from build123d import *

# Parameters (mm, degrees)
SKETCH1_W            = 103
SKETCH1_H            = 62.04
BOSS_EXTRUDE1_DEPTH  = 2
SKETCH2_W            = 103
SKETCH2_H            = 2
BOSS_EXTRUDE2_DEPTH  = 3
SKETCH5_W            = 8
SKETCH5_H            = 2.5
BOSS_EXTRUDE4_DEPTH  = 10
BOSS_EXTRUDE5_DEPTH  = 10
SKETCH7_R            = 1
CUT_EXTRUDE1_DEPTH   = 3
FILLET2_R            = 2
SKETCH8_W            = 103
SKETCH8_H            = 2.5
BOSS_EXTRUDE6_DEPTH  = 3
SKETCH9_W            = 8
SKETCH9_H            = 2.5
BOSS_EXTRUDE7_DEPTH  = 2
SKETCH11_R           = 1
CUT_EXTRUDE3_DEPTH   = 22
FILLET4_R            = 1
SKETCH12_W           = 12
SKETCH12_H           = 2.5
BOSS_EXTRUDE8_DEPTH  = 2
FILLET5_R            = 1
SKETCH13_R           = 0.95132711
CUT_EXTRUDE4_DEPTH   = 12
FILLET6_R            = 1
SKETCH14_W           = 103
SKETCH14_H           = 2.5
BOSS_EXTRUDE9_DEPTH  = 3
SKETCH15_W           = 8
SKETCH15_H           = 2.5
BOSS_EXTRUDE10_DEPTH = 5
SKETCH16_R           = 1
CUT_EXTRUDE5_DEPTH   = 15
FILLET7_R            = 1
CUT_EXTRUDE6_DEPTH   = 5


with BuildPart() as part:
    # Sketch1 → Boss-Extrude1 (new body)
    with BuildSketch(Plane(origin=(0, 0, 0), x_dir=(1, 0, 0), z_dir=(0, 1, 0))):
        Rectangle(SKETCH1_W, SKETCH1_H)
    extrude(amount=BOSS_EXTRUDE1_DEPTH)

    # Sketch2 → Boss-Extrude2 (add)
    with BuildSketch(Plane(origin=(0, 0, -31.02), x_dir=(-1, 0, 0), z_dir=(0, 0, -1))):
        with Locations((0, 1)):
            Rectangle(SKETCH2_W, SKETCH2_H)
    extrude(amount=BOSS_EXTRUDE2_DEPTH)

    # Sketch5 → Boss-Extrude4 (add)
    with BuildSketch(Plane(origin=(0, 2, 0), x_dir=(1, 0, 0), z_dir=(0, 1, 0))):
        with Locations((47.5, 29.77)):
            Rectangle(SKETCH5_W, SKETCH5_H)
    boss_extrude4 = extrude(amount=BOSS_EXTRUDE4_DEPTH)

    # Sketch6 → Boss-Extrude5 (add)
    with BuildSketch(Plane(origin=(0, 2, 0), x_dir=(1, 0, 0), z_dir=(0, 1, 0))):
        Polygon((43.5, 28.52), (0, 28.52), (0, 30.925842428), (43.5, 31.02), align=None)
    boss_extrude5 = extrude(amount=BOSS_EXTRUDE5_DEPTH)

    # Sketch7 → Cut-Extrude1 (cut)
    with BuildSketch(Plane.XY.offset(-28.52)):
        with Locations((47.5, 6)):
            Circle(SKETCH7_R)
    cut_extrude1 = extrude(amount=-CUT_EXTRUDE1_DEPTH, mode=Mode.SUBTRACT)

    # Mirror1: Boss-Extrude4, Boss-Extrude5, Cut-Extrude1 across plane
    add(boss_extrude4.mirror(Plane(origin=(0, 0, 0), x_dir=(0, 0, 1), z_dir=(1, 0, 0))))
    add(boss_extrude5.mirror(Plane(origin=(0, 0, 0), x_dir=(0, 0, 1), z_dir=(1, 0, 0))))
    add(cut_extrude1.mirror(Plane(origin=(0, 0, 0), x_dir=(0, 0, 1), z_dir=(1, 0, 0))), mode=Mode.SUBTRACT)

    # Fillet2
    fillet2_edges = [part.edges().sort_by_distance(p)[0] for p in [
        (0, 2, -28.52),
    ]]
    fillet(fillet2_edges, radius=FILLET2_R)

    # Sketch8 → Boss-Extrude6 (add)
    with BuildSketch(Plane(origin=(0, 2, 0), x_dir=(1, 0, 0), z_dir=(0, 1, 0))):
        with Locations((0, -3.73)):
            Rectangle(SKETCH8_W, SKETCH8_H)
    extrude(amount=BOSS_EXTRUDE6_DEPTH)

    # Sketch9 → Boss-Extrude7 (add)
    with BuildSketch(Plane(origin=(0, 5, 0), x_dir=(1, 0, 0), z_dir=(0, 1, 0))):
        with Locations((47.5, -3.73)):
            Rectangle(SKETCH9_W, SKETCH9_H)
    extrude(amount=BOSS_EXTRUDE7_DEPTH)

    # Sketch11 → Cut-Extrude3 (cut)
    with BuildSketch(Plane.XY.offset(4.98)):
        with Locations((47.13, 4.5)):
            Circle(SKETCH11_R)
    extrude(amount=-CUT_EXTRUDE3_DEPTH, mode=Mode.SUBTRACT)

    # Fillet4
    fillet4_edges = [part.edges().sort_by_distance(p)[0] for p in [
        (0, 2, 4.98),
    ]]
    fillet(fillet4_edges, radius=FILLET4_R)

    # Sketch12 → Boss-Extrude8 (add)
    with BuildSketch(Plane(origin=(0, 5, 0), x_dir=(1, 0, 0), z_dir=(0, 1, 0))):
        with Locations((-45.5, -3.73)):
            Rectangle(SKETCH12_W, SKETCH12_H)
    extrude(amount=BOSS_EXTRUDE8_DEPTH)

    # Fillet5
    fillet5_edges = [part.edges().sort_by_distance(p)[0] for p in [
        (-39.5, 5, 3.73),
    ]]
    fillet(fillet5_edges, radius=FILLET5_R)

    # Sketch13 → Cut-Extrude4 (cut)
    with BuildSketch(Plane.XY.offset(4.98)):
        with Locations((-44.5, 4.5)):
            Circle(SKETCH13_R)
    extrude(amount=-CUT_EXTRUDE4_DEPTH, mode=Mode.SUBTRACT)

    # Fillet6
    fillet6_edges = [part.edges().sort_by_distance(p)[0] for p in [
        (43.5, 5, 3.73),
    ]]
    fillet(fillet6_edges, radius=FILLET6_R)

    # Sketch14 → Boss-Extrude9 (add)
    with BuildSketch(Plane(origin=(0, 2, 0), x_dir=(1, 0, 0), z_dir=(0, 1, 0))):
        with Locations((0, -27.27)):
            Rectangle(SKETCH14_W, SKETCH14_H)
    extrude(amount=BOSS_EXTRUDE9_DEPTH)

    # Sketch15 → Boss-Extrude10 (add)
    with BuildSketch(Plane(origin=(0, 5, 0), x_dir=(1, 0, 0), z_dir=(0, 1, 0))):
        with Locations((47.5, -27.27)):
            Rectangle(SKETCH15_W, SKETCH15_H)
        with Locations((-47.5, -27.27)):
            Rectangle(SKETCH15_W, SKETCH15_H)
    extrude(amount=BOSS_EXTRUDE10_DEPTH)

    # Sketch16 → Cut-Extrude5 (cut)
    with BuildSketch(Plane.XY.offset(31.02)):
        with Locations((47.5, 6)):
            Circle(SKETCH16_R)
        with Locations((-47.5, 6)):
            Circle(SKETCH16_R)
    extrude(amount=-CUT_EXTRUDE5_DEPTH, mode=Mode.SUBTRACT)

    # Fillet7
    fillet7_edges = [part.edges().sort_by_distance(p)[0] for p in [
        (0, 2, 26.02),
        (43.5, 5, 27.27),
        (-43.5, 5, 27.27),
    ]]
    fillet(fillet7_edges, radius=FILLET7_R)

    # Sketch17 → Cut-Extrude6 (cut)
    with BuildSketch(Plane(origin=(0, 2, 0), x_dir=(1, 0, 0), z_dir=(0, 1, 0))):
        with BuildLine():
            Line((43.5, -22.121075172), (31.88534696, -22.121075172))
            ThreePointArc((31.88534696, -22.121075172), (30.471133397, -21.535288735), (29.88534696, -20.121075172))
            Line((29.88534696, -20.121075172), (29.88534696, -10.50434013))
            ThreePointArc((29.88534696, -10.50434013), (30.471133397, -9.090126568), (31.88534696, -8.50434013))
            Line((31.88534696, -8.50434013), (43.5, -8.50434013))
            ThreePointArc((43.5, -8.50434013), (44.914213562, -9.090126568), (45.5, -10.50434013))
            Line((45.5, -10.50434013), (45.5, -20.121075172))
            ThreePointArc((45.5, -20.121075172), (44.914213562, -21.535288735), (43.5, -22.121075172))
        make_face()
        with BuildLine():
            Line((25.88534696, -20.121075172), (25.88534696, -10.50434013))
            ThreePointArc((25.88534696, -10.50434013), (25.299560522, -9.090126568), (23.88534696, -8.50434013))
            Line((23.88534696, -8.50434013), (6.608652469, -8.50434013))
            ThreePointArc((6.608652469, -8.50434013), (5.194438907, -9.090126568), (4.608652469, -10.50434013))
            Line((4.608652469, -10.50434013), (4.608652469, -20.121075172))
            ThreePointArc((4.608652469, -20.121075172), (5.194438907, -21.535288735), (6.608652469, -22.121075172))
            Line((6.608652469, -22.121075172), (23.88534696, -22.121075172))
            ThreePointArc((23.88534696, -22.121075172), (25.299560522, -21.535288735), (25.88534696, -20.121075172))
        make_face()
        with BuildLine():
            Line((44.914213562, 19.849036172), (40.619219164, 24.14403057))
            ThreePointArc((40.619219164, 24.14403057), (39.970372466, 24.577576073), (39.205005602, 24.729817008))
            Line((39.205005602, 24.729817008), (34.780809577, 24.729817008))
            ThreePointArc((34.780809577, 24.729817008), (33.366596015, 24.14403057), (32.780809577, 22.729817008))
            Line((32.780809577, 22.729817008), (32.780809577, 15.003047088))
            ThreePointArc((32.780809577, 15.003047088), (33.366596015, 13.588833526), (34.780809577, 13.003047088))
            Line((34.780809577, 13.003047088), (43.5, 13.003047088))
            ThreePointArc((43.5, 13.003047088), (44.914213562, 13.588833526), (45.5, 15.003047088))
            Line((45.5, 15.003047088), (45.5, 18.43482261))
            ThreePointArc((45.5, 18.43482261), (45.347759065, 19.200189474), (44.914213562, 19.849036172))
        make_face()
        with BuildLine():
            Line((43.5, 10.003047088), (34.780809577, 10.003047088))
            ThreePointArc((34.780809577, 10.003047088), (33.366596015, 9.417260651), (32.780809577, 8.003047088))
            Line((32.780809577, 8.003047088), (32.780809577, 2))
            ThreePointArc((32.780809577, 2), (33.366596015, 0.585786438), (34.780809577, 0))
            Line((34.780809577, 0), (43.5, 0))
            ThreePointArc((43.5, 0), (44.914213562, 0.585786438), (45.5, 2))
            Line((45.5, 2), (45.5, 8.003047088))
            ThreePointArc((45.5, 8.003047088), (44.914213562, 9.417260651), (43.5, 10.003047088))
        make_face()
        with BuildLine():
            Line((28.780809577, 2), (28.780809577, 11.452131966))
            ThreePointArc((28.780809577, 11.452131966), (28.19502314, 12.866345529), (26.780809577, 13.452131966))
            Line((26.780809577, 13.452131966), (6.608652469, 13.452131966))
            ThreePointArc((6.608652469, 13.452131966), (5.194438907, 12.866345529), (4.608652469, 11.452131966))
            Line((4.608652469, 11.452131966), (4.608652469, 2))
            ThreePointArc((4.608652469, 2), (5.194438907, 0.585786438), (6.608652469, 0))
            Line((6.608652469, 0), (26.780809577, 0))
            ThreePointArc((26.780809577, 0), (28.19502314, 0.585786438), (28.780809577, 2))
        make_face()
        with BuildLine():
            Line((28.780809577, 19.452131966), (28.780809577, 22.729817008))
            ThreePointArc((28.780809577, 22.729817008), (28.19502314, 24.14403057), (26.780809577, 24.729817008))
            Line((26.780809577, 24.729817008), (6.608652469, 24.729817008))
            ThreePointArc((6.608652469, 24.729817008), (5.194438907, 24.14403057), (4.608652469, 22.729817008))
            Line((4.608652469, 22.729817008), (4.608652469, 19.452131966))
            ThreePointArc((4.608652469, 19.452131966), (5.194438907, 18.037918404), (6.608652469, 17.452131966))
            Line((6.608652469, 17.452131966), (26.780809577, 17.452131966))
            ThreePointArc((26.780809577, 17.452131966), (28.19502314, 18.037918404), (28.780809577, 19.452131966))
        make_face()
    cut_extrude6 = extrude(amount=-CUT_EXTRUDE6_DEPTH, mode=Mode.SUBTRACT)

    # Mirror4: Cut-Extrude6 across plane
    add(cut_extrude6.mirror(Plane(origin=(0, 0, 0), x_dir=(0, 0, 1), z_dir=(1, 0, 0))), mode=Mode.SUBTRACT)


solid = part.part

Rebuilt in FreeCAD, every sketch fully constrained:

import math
import FreeCAD as App
import Part
import Sketcher

V = App.Vector
Q = App.Units.Quantity


def edges_at(feature, points):
    """Names of the edges that pass closest to the given points."""
    edges = feature.Shape.Edges
    near = lambda p: min(range(len(edges)), key=lambda i: edges[i].distToShape(Part.Vertex(*p))[0])
    return sorted({f"Edge{near(p) + 1}" for p in points})

doc = App.newDocument("Part")
body = doc.addObject("PartDesign::Body", "Body")

# Sketch on XZ plane
sketch1 = body.newObject("Sketcher::SketchObject", "Sketch")
sketch1.AttachmentSupport = (doc.getObject("XZ_Plane"), [""])
sketch1.MapMode = "FlatFace"
sketch1.addGeometry(Part.LineSegment(V(-52, -31, 0), V(-52, 31, 0)), False)
sketch1.addGeometry(Part.LineSegment(V(-52, 31, 0), V(52, 31, 0)), False)
sketch1.addGeometry(Part.LineSegment(V(52, 31, 0), V(52, -31, 0)), False)
sketch1.addGeometry(Part.LineSegment(V(52, -31, 0), V(-52, -31, 0)), False)
sketch1.addConstraint(Sketcher.Constraint("Coincident", 0, 2, 1, 1))
sketch1.addConstraint(Sketcher.Constraint("Coincident", 1, 2, 2, 1))
sketch1.addConstraint(Sketcher.Constraint("Coincident", 2, 2, 3, 1))
sketch1.addConstraint(Sketcher.Constraint("Coincident", 3, 2, 0, 1))
sketch1.addConstraint(Sketcher.Constraint("Vertical", 0))
sketch1.addConstraint(Sketcher.Constraint("Horizontal", 1))
sketch1.addConstraint(Sketcher.Constraint("Vertical", 2))
sketch1.addConstraint(Sketcher.Constraint("Horizontal", 3))
sketch1.addConstraint(Sketcher.Constraint("Symmetric", 0, 2, 2, 2, -1, 1))
sketch1.addConstraint(Sketcher.Constraint("DistanceX", 1, 1, 1, 2, Q("103 mm")))
sketch1.addConstraint(Sketcher.Constraint("DistanceY", 0, 1, 0, 2, Q("62.04 mm")))
pad1 = body.newObject("PartDesign::Pad", "Pad")
pad1.Profile = sketch1
pad1.Length = 2
pad1.Reversed = True

# Sketch on XY plane
sketch2 = body.newObject("Sketcher::SketchObject", "Sketch001")
sketch2.AttachmentSupport = (doc.getObject("XY_Plane"), [""])
sketch2.MapMode = "FlatFace"
sketch2.AttachmentOffset = App.Placement(V(0, 0, -31.02), App.Rotation())
sketch2.addGeometry(Part.LineSegment(V(51.5, 2, 0), V(51.5, 0, 0)), False)
sketch2.addGeometry(Part.LineSegment(V(51.5, 0, 0), V(-51.5, 0, 0)), False)
sketch2.addGeometry(Part.LineSegment(V(-51.5, 0, 0), V(-51.5, 2, 0)), False)
sketch2.addGeometry(Part.LineSegment(V(-51.5, 2, 0), V(51.5, 2, 0)), False)
sketch2.addConstraint(Sketcher.Constraint("Coincident", 0, 2, 1, 1))
sketch2.addConstraint(Sketcher.Constraint("Coincident", 1, 2, 2, 1))
sketch2.addConstraint(Sketcher.Constraint("Coincident", 2, 2, 3, 1))
sketch2.addConstraint(Sketcher.Constraint("Coincident", 3, 2, 0, 1))
sketch2.addConstraint(Sketcher.Constraint("Vertical", 0))
sketch2.addConstraint(Sketcher.Constraint("Horizontal", 1))
sketch2.addConstraint(Sketcher.Constraint("Vertical", 2))
sketch2.addConstraint(Sketcher.Constraint("Horizontal", 3))
sketch2.addConstraint(Sketcher.Constraint("Symmetric", 0, 2, 1, 2, -1, 1))
sketch2.addConstraint(Sketcher.Constraint("DistanceX", 1, 2, 1, 1, Q("103 mm")))
sketch2.addConstraint(Sketcher.Constraint("DistanceY", 0, 2, 0, 1, Q("2 mm")))
pad2 = body.newObject("PartDesign::Pad", "Pad001")
pad2.Profile = sketch2
pad2.Length = 3
pad2.Reversed = True

# Sketch on XZ plane
sketch3 = body.newObject("Sketcher::SketchObject", "Sketch002")
sketch3.AttachmentSupport = (doc.getObject("XZ_Plane"), [""])
sketch3.MapMode = "FlatFace"
sketch3.AttachmentOffset = App.Placement(V(0, 0, -2), App.Rotation())
sketch3.addGeometry(Part.LineSegment(V(43.5, -31, 0), V(43.5, -28.5, 0)), False)
sketch3.addGeometry(Part.LineSegment(V(43.5, -28.5, 0), V(51.5, -28.5, 0)), False)
sketch3.addGeometry(Part.LineSegment(V(51.5, -28.5, 0), V(51.5, -31, 0)), False)
sketch3.addGeometry(Part.LineSegment(V(51.5, -31, 0), V(43.5, -31, 0)), False)
sketch3.addConstraint(Sketcher.Constraint("Coincident", 0, 2, 1, 1))
sketch3.addConstraint(Sketcher.Constraint("Coincident", 1, 2, 2, 1))
sketch3.addConstraint(Sketcher.Constraint("Coincident", 2, 2, 3, 1))
sketch3.addConstraint(Sketcher.Constraint("Coincident", 3, 2, 0, 1))
sketch3.addConstraint(Sketcher.Constraint("Vertical", 0))
sketch3.addConstraint(Sketcher.Constraint("Horizontal", 1))
sketch3.addConstraint(Sketcher.Constraint("Vertical", 2))
sketch3.addConstraint(Sketcher.Constraint("Horizontal", 3))
sketch3.addConstraint(Sketcher.Constraint("DistanceX", 1, 1, 1, 2, Q("8 mm")))
sketch3.addConstraint(Sketcher.Constraint("DistanceY", 0, 1, 0, 2, Q("2.5 mm")))
sketch3.addConstraint(Sketcher.Constraint("DistanceX", -1, 1, 0, 2, Q("43.5 mm")))
sketch3.addConstraint(Sketcher.Constraint("DistanceY", 0, 2, -1, 1, Q("28.52 mm")))
pad3 = body.newObject("PartDesign::Pad", "Pad002")
pad3.Profile = sketch3
pad3.Length = 10
pad3.Reversed = True

# Sketch on XZ plane
sketch4 = body.newObject("Sketcher::SketchObject", "Sketch003")
sketch4.AttachmentSupport = (doc.getObject("XZ_Plane"), [""])
sketch4.MapMode = "FlatFace"
sketch4.AttachmentOffset = App.Placement(V(0, 0, -2), App.Rotation())
sketch4.addGeometry(Part.LineSegment(V(0, -28.5, 0), V(43.5, -28.5, 0)), False)
sketch4.addGeometry(Part.LineSegment(V(43.5, -28.5, 0), V(43.5, -31, 0)), False)
sketch4.addGeometry(Part.LineSegment(V(43.5, -31, 0), V(0, -30.9, 0)), False)
sketch4.addGeometry(Part.LineSegment(V(0, -30.9, 0), V(0, -28.5, 0)), False)
sketch4.addConstraint(Sketcher.Constraint("Coincident", 0, 2, 1, 1))
sketch4.addConstraint(Sketcher.Constraint("Coincident", 1, 2, 2, 1))
sketch4.addConstraint(Sketcher.Constraint("Coincident", 2, 2, 3, 1))
sketch4.addConstraint(Sketcher.Constraint("Coincident", 3, 2, 0, 1))
sketch4.addConstraint(Sketcher.Constraint("Horizontal", 0))
sketch4.addConstraint(Sketcher.Constraint("Vertical", 1))
sketch4.addConstraint(Sketcher.Constraint("Vertical", 3))
sketch4.addConstraint(Sketcher.Constraint("PointOnObject", 2, 2, -2))
sketch4.addConstraint(Sketcher.Constraint("DistanceX", 0, 1, 0, 2, Q("43.5 mm")))
sketch4.addConstraint(Sketcher.Constraint("DistanceY", 1, 2, 1, 1, Q("2.5 mm")))
sketch4.addConstraint(Sketcher.Constraint("DistanceY", 0, 2, -1, 1, Q("28.52 mm")))
sketch4.addConstraint(Sketcher.Constraint("DistanceY", 3, 1, 3, 2, Q("2.405842 mm")))
pad4 = body.newObject("PartDesign::Pad", "Pad003")
pad4.Profile = sketch4
pad4.Length = 10
pad4.Reversed = True

# Sketch on XY plane
sketch5 = body.newObject("Sketcher::SketchObject", "Sketch004")
sketch5.AttachmentSupport = (doc.getObject("XY_Plane"), [""])
sketch5.MapMode = "FlatFace"
sketch5.AttachmentOffset = App.Placement(V(0, 0, -28.52), App.Rotation())
sketch5.addGeometry(Part.Circle(V(47.5, 6, 0), V(0, 0, 1), 1), False)
sketch5.addConstraint(Sketcher.Constraint("Diameter", 0, Q("2 mm")))
sketch5.addConstraint(Sketcher.Constraint("DistanceY", -1, 1, 0, 3, Q("6 mm")))
sketch5.addConstraint(Sketcher.Constraint("DistanceX", -1, 1, 0, 3, Q("47.5 mm")))
pocket1 = body.newObject("PartDesign::Pocket", "Pocket")
pocket1.Profile = sketch5
pocket1.Length = 3
doc.recompute()

mirrored = body.newObject("PartDesign::Mirrored", "Mirrored")
mirrored.Originals = [pad3, pad4, pocket1]
mirrored.MirrorPlane = (doc.getObject("YZ_Plane"), [""])
body.Tip = mirrored
doc.recompute()

fillet = body.newObject("PartDesign::Fillet", "Fillet")
fillet.Base = (mirrored, edges_at(mirrored, [(0, 2, -28.52)]))
fillet.Radius = 2

# Sketch on XZ plane
sketch6 = body.newObject("Sketcher::SketchObject", "Sketch005")
sketch6.AttachmentSupport = (doc.getObject("XZ_Plane"), [""])
sketch6.MapMode = "FlatFace"
sketch6.AttachmentOffset = App.Placement(V(0, 0, -2), App.Rotation())
sketch6.addGeometry(Part.LineSegment(V(-51.5, 2.5, 0), V(-51.5, 5, 0)), False)
sketch6.addGeometry(Part.LineSegment(V(-51.5, 5, 0), V(51.5, 5, 0)), False)
sketch6.addGeometry(Part.LineSegment(V(51.5, 5, 0), V(51.5, 2.5, 0)), False)
sketch6.addGeometry(Part.LineSegment(V(51.5, 2.5, 0), V(-51.5, 2.5, 0)), False)
sketch6.addConstraint(Sketcher.Constraint("Coincident", 0, 2, 1, 1))
sketch6.addConstraint(Sketcher.Constraint("Coincident", 1, 2, 2, 1))
sketch6.addConstraint(Sketcher.Constraint("Coincident", 2, 2, 3, 1))
sketch6.addConstraint(Sketcher.Constraint("Coincident", 3, 2, 0, 1))
sketch6.addConstraint(Sketcher.Constraint("Vertical", 0))
sketch6.addConstraint(Sketcher.Constraint("Horizontal", 1))
sketch6.addConstraint(Sketcher.Constraint("Vertical", 2))
sketch6.addConstraint(Sketcher.Constraint("Horizontal", 3))
sketch6.addConstraint(Sketcher.Constraint("DistanceX", 1, 1, 1, 2, Q("103 mm")))
sketch6.addConstraint(Sketcher.Constraint("DistanceY", 0, 1, 0, 2, Q("2.5 mm")))
sketch6.addConstraint(Sketcher.Constraint("DistanceX", 0, 2, -1, 1, Q("51.5 mm")))
sketch6.addConstraint(Sketcher.Constraint("DistanceY", -1, 1, 0, 2, Q("4.98 mm")))
pad5 = body.newObject("PartDesign::Pad", "Pad004")
pad5.Profile = sketch6
pad5.Length = 3
pad5.Reversed = True

# Sketch on XZ plane
sketch7 = body.newObject("Sketcher::SketchObject", "Sketch006")
sketch7.AttachmentSupport = (doc.getObject("XZ_Plane"), [""])
sketch7.MapMode = "FlatFace"
sketch7.AttachmentOffset = App.Placement(V(0, 0, -5), App.Rotation())
sketch7.addGeometry(Part.LineSegment(V(43.5, 2.5, 0), V(43.5, 5, 0)), False)
sketch7.addGeometry(Part.LineSegment(V(43.5, 5, 0), V(51.5, 5, 0)), False)
sketch7.addGeometry(Part.LineSegment(V(51.5, 5, 0), V(51.5, 2.5, 0)), False)
sketch7.addGeometry(Part.LineSegment(V(51.5, 2.5, 0), V(43.5, 2.5, 0)), False)
sketch7.addConstraint(Sketcher.Constraint("Coincident", 0, 2, 1, 1))
sketch7.addConstraint(Sketcher.Constraint("Coincident", 1, 2, 2, 1))
sketch7.addConstraint(Sketcher.Constraint("Coincident", 2, 2, 3, 1))
sketch7.addConstraint(Sketcher.Constraint("Coincident", 3, 2, 0, 1))
sketch7.addConstraint(Sketcher.Constraint("Vertical", 0))
sketch7.addConstraint(Sketcher.Constraint("Horizontal", 1))
sketch7.addConstraint(Sketcher.Constraint("Vertical", 2))
sketch7.addConstraint(Sketcher.Constraint("Horizontal", 3))
sketch7.addConstraint(Sketcher.Constraint("DistanceX", 1, 1, 1, 2, Q("8 mm")))
sketch7.addConstraint(Sketcher.Constraint("DistanceY", 0, 1, 0, 2, Q("2.5 mm")))
sketch7.addConstraint(Sketcher.Constraint("DistanceX", -1, 1, 0, 2, Q("43.5 mm")))
sketch7.addConstraint(Sketcher.Constraint("DistanceY", -1, 1, 0, 2, Q("4.98 mm")))
pad6 = body.newObject("PartDesign::Pad", "Pad005")
pad6.Profile = sketch7
pad6.Length = 2
pad6.Reversed = True

# Sketch on XY plane
sketch8 = body.newObject("Sketcher::SketchObject", "Sketch007")
sketch8.AttachmentSupport = (doc.getObject("XY_Plane"), [""])
sketch8.MapMode = "FlatFace"
sketch8.AttachmentOffset = App.Placement(V(0, 0, 4.98), App.Rotation())
sketch8.addGeometry(Part.Circle(V(47.1, 4.5, 0), V(0, 0, 1), 1), False)
sketch8.addConstraint(Sketcher.Constraint("Diameter", 0, Q("2 mm")))
sketch8.addConstraint(Sketcher.Constraint("DistanceY", -1, 1, 0, 3, Q("4.5 mm")))
sketch8.addConstraint(Sketcher.Constraint("DistanceX", -1, 1, 0, 3, Q("47.13 mm")))
pocket2 = body.newObject("PartDesign::Pocket", "Pocket001")
pocket2.Profile = sketch8
pocket2.Length = 22
doc.recompute()

fillet2 = body.newObject("PartDesign::Fillet", "Fillet001")
fillet2.Base = (pocket2, edges_at(pocket2, [(0, 2, 4.98)]))
fillet2.Radius = 1

# Sketch on XZ plane
sketch9 = body.newObject("Sketcher::SketchObject", "Sketch008")
sketch9.AttachmentSupport = (doc.getObject("XZ_Plane"), [""])
sketch9.MapMode = "FlatFace"
sketch9.AttachmentOffset = App.Placement(V(0, 0, -5), App.Rotation())
sketch9.addGeometry(Part.LineSegment(V(-51.5, 2.5, 0), V(-51.5, 5, 0)), False)
sketch9.addGeometry(Part.LineSegment(V(-51.5, 5, 0), V(-39.5, 5, 0)), False)
sketch9.addGeometry(Part.LineSegment(V(-39.5, 5, 0), V(-39.5, 2.5, 0)), False)
sketch9.addGeometry(Part.LineSegment(V(-39.5, 2.5, 0), V(-51.5, 2.5, 0)), False)
sketch9.addConstraint(Sketcher.Constraint("Coincident", 0, 2, 1, 1))
sketch9.addConstraint(Sketcher.Constraint("Coincident", 1, 2, 2, 1))
sketch9.addConstraint(Sketcher.Constraint("Coincident", 2, 2, 3, 1))
sketch9.addConstraint(Sketcher.Constraint("Coincident", 3, 2, 0, 1))
sketch9.addConstraint(Sketcher.Constraint("Vertical", 0))
sketch9.addConstraint(Sketcher.Constraint("Horizontal", 1))
sketch9.addConstraint(Sketcher.Constraint("Vertical", 2))
sketch9.addConstraint(Sketcher.Constraint("Horizontal", 3))
sketch9.addConstraint(Sketcher.Constraint("DistanceX", 1, 1, 1, 2, Q("12 mm")))
sketch9.addConstraint(Sketcher.Constraint("DistanceY", 0, 1, 0, 2, Q("2.5 mm")))
sketch9.addConstraint(Sketcher.Constraint("DistanceX", 0, 2, -1, 1, Q("51.5 mm")))
sketch9.addConstraint(Sketcher.Constraint("DistanceY", -1, 1, 0, 2, Q("4.98 mm")))
pad7 = body.newObject("PartDesign::Pad", "Pad006")
pad7.Profile = sketch9
pad7.Length = 2
pad7.Reversed = True
doc.recompute()

fillet3 = body.newObject("PartDesign::Fillet", "Fillet002")
fillet3.Base = (pad7, edges_at(pad7, [(-39.5, 5, 3.73)]))
fillet3.Radius = 1

# Sketch on XY plane
sketch10 = body.newObject("Sketcher::SketchObject", "Sketch009")
sketch10.AttachmentSupport = (doc.getObject("XY_Plane"), [""])
sketch10.MapMode = "FlatFace"
sketch10.AttachmentOffset = App.Placement(V(0, 0, 4.98), App.Rotation())
sketch10.addGeometry(Part.Circle(V(-44.5, 4.5, 0), V(0, 0, 1), 1), False)
sketch10.addConstraint(Sketcher.Constraint("DistanceX", 0, 3, -1, 1, Q("44.5 mm")))
sketch10.addConstraint(Sketcher.Constraint("DistanceY", -1, 1, 0, 3, Q("4.5 mm")))
sketch10.addConstraint(Sketcher.Constraint("Diameter", 0, Q("1.902654 mm")))
pocket3 = body.newObject("PartDesign::Pocket", "Pocket002")
pocket3.Profile = sketch10
pocket3.Length = 12
doc.recompute()

fillet4 = body.newObject("PartDesign::Fillet", "Fillet003")
fillet4.Base = (pocket3, edges_at(pocket3, [(43.5, 5, 3.73)]))
fillet4.Radius = 1

# Sketch on XZ plane
sketch11 = body.newObject("Sketcher::SketchObject", "Sketch010")
sketch11.AttachmentSupport = (doc.getObject("XZ_Plane"), [""])
sketch11.MapMode = "FlatFace"
sketch11.AttachmentOffset = App.Placement(V(0, 0, -2), App.Rotation())
sketch11.addGeometry(Part.LineSegment(V(-51.5, 26, 0), V(-51.5, 28.5, 0)), False)
sketch11.addGeometry(Part.LineSegment(V(-51.5, 28.5, 0), V(51.5, 28.5, 0)), False)
sketch11.addGeometry(Part.LineSegment(V(51.5, 28.5, 0), V(51.5, 26, 0)), False)
sketch11.addGeometry(Part.LineSegment(V(51.5, 26, 0), V(-51.5, 26, 0)), False)
sketch11.addConstraint(Sketcher.Constraint("Coincident", 0, 2, 1, 1))
sketch11.addConstraint(Sketcher.Constraint("Coincident", 1, 2, 2, 1))
sketch11.addConstraint(Sketcher.Constraint("Coincident", 2, 2, 3, 1))
sketch11.addConstraint(Sketcher.Constraint("Coincident", 3, 2, 0, 1))
sketch11.addConstraint(Sketcher.Constraint("Vertical", 0))
sketch11.addConstraint(Sketcher.Constraint("Horizontal", 1))
sketch11.addConstraint(Sketcher.Constraint("Vertical", 2))
sketch11.addConstraint(Sketcher.Constraint("Horizontal", 3))
sketch11.addConstraint(Sketcher.Constraint("DistanceX", 1, 1, 1, 2, Q("103 mm")))
sketch11.addConstraint(Sketcher.Constraint("DistanceY", 0, 1, 0, 2, Q("2.5 mm")))
sketch11.addConstraint(Sketcher.Constraint("DistanceX", 0, 2, -1, 1, Q("51.5 mm")))
sketch11.addConstraint(Sketcher.Constraint("DistanceY", -1, 1, 0, 2, Q("28.52 mm")))
pad8 = body.newObject("PartDesign::Pad", "Pad007")
pad8.Profile = sketch11
pad8.Length = 3
pad8.Reversed = True

# Sketch on XZ plane
sketch12 = body.newObject("Sketcher::SketchObject", "Sketch011")
sketch12.AttachmentSupport = (doc.getObject("XZ_Plane"), [""])
sketch12.MapMode = "FlatFace"
sketch12.AttachmentOffset = App.Placement(V(0, 0, -5), App.Rotation())
sketch12.addGeometry(Part.LineSegment(V(43.5, 26, 0), V(43.5, 28.5, 0)), False)
sketch12.addGeometry(Part.LineSegment(V(43.5, 28.5, 0), V(51.5, 28.5, 0)), False)
sketch12.addGeometry(Part.LineSegment(V(51.5, 28.5, 0), V(51.5, 26, 0)), False)
sketch12.addGeometry(Part.LineSegment(V(51.5, 26, 0), V(43.5, 26, 0)), False)
sketch12.addGeometry(Part.LineSegment(V(-51.5, 26, 0), V(-51.5, 28.5, 0)), False)
sketch12.addGeometry(Part.LineSegment(V(-51.5, 28.5, 0), V(-43.5, 28.5, 0)), False)
sketch12.addGeometry(Part.LineSegment(V(-43.5, 28.5, 0), V(-43.5, 26, 0)), False)
sketch12.addGeometry(Part.LineSegment(V(-43.5, 26, 0), V(-51.5, 26, 0)), False)
sketch12.addConstraint(Sketcher.Constraint("Coincident", 0, 2, 1, 1))
sketch12.addConstraint(Sketcher.Constraint("Coincident", 1, 2, 2, 1))
sketch12.addConstraint(Sketcher.Constraint("Coincident", 2, 2, 3, 1))
sketch12.addConstraint(Sketcher.Constraint("Coincident", 3, 2, 0, 1))
sketch12.addConstraint(Sketcher.Constraint("Coincident", 4, 2, 5, 1))
sketch12.addConstraint(Sketcher.Constraint("Coincident", 5, 2, 6, 1))
sketch12.addConstraint(Sketcher.Constraint("Coincident", 6, 2, 7, 1))
sketch12.addConstraint(Sketcher.Constraint("Coincident", 7, 2, 4, 1))
sketch12.addConstraint(Sketcher.Constraint("Vertical", 0))
sketch12.addConstraint(Sketcher.Constraint("Horizontal", 1))
sketch12.addConstraint(Sketcher.Constraint("Vertical", 2))
sketch12.addConstraint(Sketcher.Constraint("Horizontal", 3))
sketch12.addConstraint(Sketcher.Constraint("Vertical", 4))
sketch12.addConstraint(Sketcher.Constraint("Horizontal", 5))
sketch12.addConstraint(Sketcher.Constraint("Vertical", 6))
sketch12.addConstraint(Sketcher.Constraint("Horizontal", 7))
sketch12.addConstraint(Sketcher.Constraint("Symmetric", 1, 2, 4, 2, -2))
sketch12.addConstraint(Sketcher.Constraint("Symmetric", 3, 2, 6, 2, -2))
sketch12.addConstraint(Sketcher.Constraint("DistanceX", 1, 1, 1, 2, Q("8 mm")))
sketch12.addConstraint(Sketcher.Constraint("DistanceY", 0, 1, 0, 2, Q("2.5 mm")))
sketch12.addConstraint(Sketcher.Constraint("DistanceX", 4, 2, 0, 2, Q("95 mm")))
sketch12.addConstraint(Sketcher.Constraint("DistanceY", -1, 1, 0, 2, Q("28.52 mm")))
pad9 = body.newObject("PartDesign::Pad", "Pad008")
pad9.Profile = sketch12
pad9.Length = 5
pad9.Reversed = True

# Sketch on XY plane
sketch13 = body.newObject("Sketcher::SketchObject", "Sketch012")
sketch13.AttachmentSupport = (doc.getObject("XY_Plane"), [""])
sketch13.MapMode = "FlatFace"
sketch13.AttachmentOffset = App.Placement(V(0, 0, 31.02), App.Rotation())
sketch13.addGeometry(Part.Circle(V(47.5, 6, 0), V(0, 0, 1), 1), False)
sketch13.addGeometry(Part.Circle(V(-47.5, 6, 0), V(0, 0, 1), 1), False)
sketch13.addConstraint(Sketcher.Constraint("Equal", 0, 1))
sketch13.addConstraint(Sketcher.Constraint("Symmetric", 0, 3, 1, 3, -2))
sketch13.addConstraint(Sketcher.Constraint("Diameter", 0, Q("2 mm")))
sketch13.addConstraint(Sketcher.Constraint("DistanceY", -1, 1, 0, 3, Q("6 mm")))
sketch13.addConstraint(Sketcher.Constraint("DistanceX", 1, 3, 0, 3, Q("95 mm")))
pocket4 = body.newObject("PartDesign::Pocket", "Pocket003")
pocket4.Profile = sketch13
pocket4.Length = 15
doc.recompute()

fillet5 = body.newObject("PartDesign::Fillet", "Fillet004")
fillet5.Base = (pocket4, edges_at(pocket4, [(0, 2, 26.02), (43.5, 5, 27.27), (-43.5, 5, 27.27)]))
fillet5.Radius = 1

# Sketch on XZ plane
sketch14 = body.newObject("Sketcher::SketchObject", "Sketch013")
sketch14.AttachmentSupport = (doc.getObject("XZ_Plane"), [""])
sketch14.MapMode = "FlatFace"
sketch14.AttachmentOffset = App.Placement(V(0, 0, -2), App.Rotation())
sketch14.addGeometry(Part.LineSegment(V(31.9, 22.1, 0), V(43.5, 22.1, 0)), False)
sketch14.addGeometry(Part.ArcOfCircle(Part.Circle(V(43.5, 20.1, 0), V(0, 0, 1), 2), math.radians(0), math.radians(90)), False)
sketch14.addGeometry(Part.LineSegment(V(45.5, 20.1, 0), V(45.5, 10.5, 0)), False)
sketch14.addGeometry(Part.ArcOfCircle(Part.Circle(V(43.5, 10.5, 0), V(0, 0, 1), 2), math.radians(-90), math.radians(0)), False)
sketch14.addGeometry(Part.LineSegment(V(43.5, 8.5, 0), V(31.9, 8.5, 0)), False)
sketch14.addGeometry(Part.ArcOfCircle(Part.Circle(V(31.9, 10.5, 0), V(0, 0, 1), 2), math.radians(180), math.radians(270)), False)
sketch14.addGeometry(Part.LineSegment(V(29.9, 10.5, 0), V(29.9, 20.1, 0)), False)
sketch14.addGeometry(Part.ArcOfCircle(Part.Circle(V(31.9, 20.1, 0), V(0, 0, 1), 2), math.radians(90), math.radians(180)), False)
sketch14.addGeometry(Part.LineSegment(V(25.9, 20.1, 0), V(25.9, 10.5, 0)), False)
sketch14.addGeometry(Part.ArcOfCircle(Part.Circle(V(23.9, 10.5, 0), V(0, 0, 1), 2), math.radians(-90), math.radians(0)), False)
sketch14.addGeometry(Part.LineSegment(V(23.9, 8.5, 0), V(6.6, 8.5, 0)), False)
sketch14.addGeometry(Part.ArcOfCircle(Part.Circle(V(6.6, 10.5, 0), V(0, 0, 1), 2), math.radians(-180), math.radians(-90)), False)
sketch14.addGeometry(Part.LineSegment(V(4.6, 10.5, 0), V(4.6, 20.1, 0)), False)
sketch14.addGeometry(Part.ArcOfCircle(Part.Circle(V(6.6, 20.1, 0), V(0, 0, 1), 2), math.radians(90), math.radians(180)), False)
sketch14.addGeometry(Part.LineSegment(V(6.6, 22.1, 0), V(23.9, 22.1, 0)), False)
sketch14.addGeometry(Part.ArcOfCircle(Part.Circle(V(23.9, 20.1, 0), V(0, 0, 1), 2), math.radians(0), math.radians(90)), False)
sketch14.addGeometry(Part.LineSegment(V(44.9, -19.8, 0), V(40.6, -24.1, 0)), False)
sketch14.addGeometry(Part.ArcOfCircle(Part.Circle(V(39.2, -22.7, 0), V(0, 0, 1), 2), math.radians(-90), math.radians(-45)), False)
sketch14.addGeometry(Part.LineSegment(V(39.2, -24.7, 0), V(34.8, -24.7, 0)), False)
sketch14.addGeometry(Part.ArcOfCircle(Part.Circle(V(34.8, -22.7, 0), V(0, 0, 1), 2), math.radians(-180), math.radians(-90)), False)
sketch14.addGeometry(Part.LineSegment(V(32.8, -22.7, 0), V(32.8, -15, 0)), False)
sketch14.addGeometry(Part.ArcOfCircle(Part.Circle(V(34.8, -15, 0), V(0, 0, 1), 2), math.radians(90), math.radians(180)), False)
sketch14.addGeometry(Part.LineSegment(V(34.8, -13, 0), V(43.5, -13, 0)), False)
sketch14.addGeometry(Part.ArcOfCircle(Part.Circle(V(43.5, -15, 0), V(0, 0, 1), 2), math.radians(0), math.radians(90)), False)
sketch14.addGeometry(Part.LineSegment(V(45.5, -15, 0), V(45.5, -18.4, 0)), False)
sketch14.addGeometry(Part.ArcOfCircle(Part.Circle(V(43.5, -18.4, 0), V(0, 0, 1), 2), math.radians(-45), math.radians(0)), False)
sketch14.addGeometry(Part.LineSegment(V(43.5, -10, 0), V(34.8, -10, 0)), False)
sketch14.addGeometry(Part.ArcOfCircle(Part.Circle(V(34.8, -8, 0), V(0, 0, 1), 2), math.radians(180), math.radians(270)), False)
sketch14.addGeometry(Part.LineSegment(V(32.8, -8, 0), V(32.8, -2, 0)), False)
sketch14.addGeometry(Part.ArcOfCircle(Part.Circle(V(34.8, -2, 0), V(0, 0, 1), 2), math.radians(90), math.radians(180)), False)
sketch14.addGeometry(Part.LineSegment(V(34.8, 0, 0), V(43.5, 0, 0)), False)
sketch14.addGeometry(Part.ArcOfCircle(Part.Circle(V(43.5, -2, 0), V(0, 0, 1), 2), math.radians(0), math.radians(90)), False)
sketch14.addGeometry(Part.LineSegment(V(45.5, -2, 0), V(45.5, -8, 0)), False)
sketch14.addGeometry(Part.ArcOfCircle(Part.Circle(V(43.5, -8, 0), V(0, 0, 1), 2), math.radians(-90), math.radians(0)), False)
sketch14.addGeometry(Part.LineSegment(V(28.8, -2, 0), V(28.8, -11.5, 0)), False)
sketch14.addGeometry(Part.ArcOfCircle(Part.Circle(V(26.8, -11.5, 0), V(0, 0, 1), 2), math.radians(-90), math.radians(0)), False)
sketch14.addGeometry(Part.LineSegment(V(26.8, -13.5, 0), V(6.6, -13.5, 0)), False)
sketch14.addGeometry(Part.ArcOfCircle(Part.Circle(V(6.6, -11.5, 0), V(0, 0, 1), 2), math.radians(180), math.radians(270)), False)
sketch14.addGeometry(Part.LineSegment(V(4.6, -11.5, 0), V(4.6, -2, 0)), False)
sketch14.addGeometry(Part.ArcOfCircle(Part.Circle(V(6.6, -2, 0), V(0, 0, 1), 2), math.radians(90), math.radians(180)), False)
sketch14.addGeometry(Part.LineSegment(V(6.6, 0, 0), V(26.8, 0, 0)), False)
sketch14.addGeometry(Part.ArcOfCircle(Part.Circle(V(26.8, -2, 0), V(0, 0, 1), 2), math.radians(0), math.radians(90)), False)
sketch14.addGeometry(Part.LineSegment(V(28.8, -19.5, 0), V(28.8, -22.7, 0)), False)
sketch14.addGeometry(Part.ArcOfCircle(Part.Circle(V(26.8, -22.7, 0), V(0, 0, 1), 2), math.radians(-90), math.radians(0)), False)
sketch14.addGeometry(Part.LineSegment(V(26.8, -24.7, 0), V(6.6, -24.7, 0)), False)
sketch14.addGeometry(Part.ArcOfCircle(Part.Circle(V(6.6, -22.7, 0), V(0, 0, 1), 2), math.radians(-180), math.radians(-90)), False)
sketch14.addGeometry(Part.LineSegment(V(4.6, -22.7, 0), V(4.6, -19.5, 0)), False)
sketch14.addGeometry(Part.ArcOfCircle(Part.Circle(V(6.6, -19.5, 0), V(0, 0, 1), 2), math.radians(90), math.radians(180)), False)
sketch14.addGeometry(Part.LineSegment(V(6.6, -17.5, 0), V(26.8, -17.5, 0)), False)
sketch14.addGeometry(Part.ArcOfCircle(Part.Circle(V(26.8, -19.5, 0), V(0, 0, 1), 2), math.radians(0), math.radians(90)), False)
sketch14.addConstraint(Sketcher.Constraint("Tangent", 0, 2, 1, 2))
sketch14.addConstraint(Sketcher.Constraint("Tangent", 1, 1, 2, 1))
sketch14.addConstraint(Sketcher.Constraint("Tangent", 2, 2, 3, 2))
sketch14.addConstraint(Sketcher.Constraint("Tangent", 3, 1, 4, 1))
sketch14.addConstraint(Sketcher.Constraint("Tangent", 4, 2, 5, 2))
sketch14.addConstraint(Sketcher.Constraint("Tangent", 5, 1, 6, 1))
sketch14.addConstraint(Sketcher.Constraint("Tangent", 6, 2, 7, 2))
sketch14.addConstraint(Sketcher.Constraint("Tangent", 7, 1, 0, 1))
sketch14.addConstraint(Sketcher.Constraint("Tangent", 8, 2, 9, 2))
sketch14.addConstraint(Sketcher.Constraint("Tangent", 9, 1, 10, 1))
sketch14.addConstraint(Sketcher.Constraint("Tangent", 10, 2, 11, 2))
sketch14.addConstraint(Sketcher.Constraint("Tangent", 11, 1, 12, 1))
sketch14.addConstraint(Sketcher.Constraint("Tangent", 12, 2, 13, 2))
sketch14.addConstraint(Sketcher.Constraint("Tangent", 13, 1, 14, 1))
sketch14.addConstraint(Sketcher.Constraint("Tangent", 14, 2, 15, 2))
sketch14.addConstraint(Sketcher.Constraint("Tangent", 15, 1, 8, 1))
sketch14.addConstraint(Sketcher.Constraint("Tangent", 16, 2, 17, 2))
sketch14.addConstraint(Sketcher.Constraint("Tangent", 17, 1, 18, 1))
sketch14.addConstraint(Sketcher.Constraint("Tangent", 18, 2, 19, 2))
sketch14.addConstraint(Sketcher.Constraint("Tangent", 19, 1, 20, 1))
sketch14.addConstraint(Sketcher.Constraint("Tangent", 20, 2, 21, 2))
sketch14.addConstraint(Sketcher.Constraint("Tangent", 21, 1, 22, 1))
sketch14.addConstraint(Sketcher.Constraint("Tangent", 22, 2, 23, 2))
sketch14.addConstraint(Sketcher.Constraint("Tangent", 23, 1, 24, 1))
sketch14.addConstraint(Sketcher.Constraint("Tangent", 24, 2, 25, 2))
sketch14.addConstraint(Sketcher.Constraint("Tangent", 25, 1, 16, 1))
sketch14.addConstraint(Sketcher.Constraint("Tangent", 26, 2, 27, 2))
sketch14.addConstraint(Sketcher.Constraint("Tangent", 27, 1, 28, 1))
sketch14.addConstraint(Sketcher.Constraint("Tangent", 28, 2, 29, 2))
sketch14.addConstraint(Sketcher.Constraint("Tangent", 29, 1, 30, 1))
sketch14.addConstraint(Sketcher.Constraint("Tangent", 30, 2, 31, 2))
sketch14.addConstraint(Sketcher.Constraint("Tangent", 31, 1, 32, 1))
sketch14.addConstraint(Sketcher.Constraint("Tangent", 32, 2, 33, 2))
sketch14.addConstraint(Sketcher.Constraint("Tangent", 33, 1, 26, 1))
sketch14.addConstraint(Sketcher.Constraint("Tangent", 34, 2, 35, 2))
sketch14.addConstraint(Sketcher.Constraint("Tangent", 35, 1, 36, 1))
sketch14.addConstraint(Sketcher.Constraint("Tangent", 36, 2, 37, 2))
sketch14.addConstraint(Sketcher.Constraint("Tangent", 37, 1, 38, 1))
sketch14.addConstraint(Sketcher.Constraint("Tangent", 38, 2, 39, 2))
sketch14.addConstraint(Sketcher.Constraint("Tangent", 39, 1, 40, 1))
sketch14.addConstraint(Sketcher.Constraint("Tangent", 40, 2, 41, 2))
sketch14.addConstraint(Sketcher.Constraint("Tangent", 41, 1, 34, 1))
sketch14.addConstraint(Sketcher.Constraint("Tangent", 42, 2, 43, 2))
sketch14.addConstraint(Sketcher.Constraint("Tangent", 43, 1, 44, 1))
sketch14.addConstraint(Sketcher.Constraint("Tangent", 44, 2, 45, 2))
sketch14.addConstraint(Sketcher.Constraint("Tangent", 45, 1, 46, 1))
sketch14.addConstraint(Sketcher.Constraint("Tangent", 46, 2, 47, 2))
sketch14.addConstraint(Sketcher.Constraint("Tangent", 47, 1, 48, 1))
sketch14.addConstraint(Sketcher.Constraint("Tangent", 48, 2, 49, 2))
sketch14.addConstraint(Sketcher.Constraint("Tangent", 49, 1, 42, 1))
sketch14.addConstraint(Sketcher.Constraint("Horizontal", 0))
sketch14.addConstraint(Sketcher.Constraint("Vertical", 2))
sketch14.addConstraint(Sketcher.Constraint("Horizontal", 4))
sketch14.addConstraint(Sketcher.Constraint("Vertical", 6))
sketch14.addConstraint(Sketcher.Constraint("Vertical", 8))
sketch14.addConstraint(Sketcher.Constraint("Horizontal", 10))
sketch14.addConstraint(Sketcher.Constraint("Vertical", 12))
sketch14.addConstraint(Sketcher.Constraint("Horizontal", 14))
sketch14.addConstraint(Sketcher.Constraint("Horizontal", 18))
sketch14.addConstraint(Sketcher.Constraint("Vertical", 20))
sketch14.addConstraint(Sketcher.Constraint("Horizontal", 22))
sketch14.addConstraint(Sketcher.Constraint("Vertical", 24))
sketch14.addConstraint(Sketcher.Constraint("Horizontal", 26))
sketch14.addConstraint(Sketcher.Constraint("Vertical", 28))
sketch14.addConstraint(Sketcher.Constraint("Horizontal", 30))
sketch14.addConstraint(Sketcher.Constraint("Vertical", 32))
sketch14.addConstraint(Sketcher.Constraint("Vertical", 34))
sketch14.addConstraint(Sketcher.Constraint("Horizontal", 36))
sketch14.addConstraint(Sketcher.Constraint("Vertical", 38))
sketch14.addConstraint(Sketcher.Constraint("Horizontal", 40))
sketch14.addConstraint(Sketcher.Constraint("Vertical", 42))
sketch14.addConstraint(Sketcher.Constraint("Horizontal", 44))
sketch14.addConstraint(Sketcher.Constraint("Vertical", 46))
sketch14.addConstraint(Sketcher.Constraint("Horizontal", 48))
sketch14.addConstraint(Sketcher.Constraint("Equal", 1, 3))
sketch14.addConstraint(Sketcher.Constraint("Equal", 3, 5))
sketch14.addConstraint(Sketcher.Constraint("Equal", 5, 7))
sketch14.addConstraint(Sketcher.Constraint("Equal", 7, 9))
sketch14.addConstraint(Sketcher.Constraint("Equal", 9, 11))
sketch14.addConstraint(Sketcher.Constraint("Equal", 11, 13))
sketch14.addConstraint(Sketcher.Constraint("Equal", 13, 15))
sketch14.addConstraint(Sketcher.Constraint("Equal", 15, 17))
sketch14.addConstraint(Sketcher.Constraint("Equal", 17, 19))
sketch14.addConstraint(Sketcher.Constraint("Equal", 19, 21))
sketch14.addConstraint(Sketcher.Constraint("Equal", 21, 23))
sketch14.addConstraint(Sketcher.Constraint("Equal", 23, 25))
sketch14.addConstraint(Sketcher.Constraint("Equal", 25, 27))
sketch14.addConstraint(Sketcher.Constraint("Equal", 27, 29))
sketch14.addConstraint(Sketcher.Constraint("Equal", 29, 31))
sketch14.addConstraint(Sketcher.Constraint("Equal", 31, 33))
sketch14.addConstraint(Sketcher.Constraint("Equal", 33, 35))
sketch14.addConstraint(Sketcher.Constraint("Equal", 35, 37))
sketch14.addConstraint(Sketcher.Constraint("Equal", 37, 39))
sketch14.addConstraint(Sketcher.Constraint("Equal", 39, 41))
sketch14.addConstraint(Sketcher.Constraint("Equal", 41, 43))
sketch14.addConstraint(Sketcher.Constraint("Equal", 43, 45))
sketch14.addConstraint(Sketcher.Constraint("Equal", 45, 47))
sketch14.addConstraint(Sketcher.Constraint("Equal", 47, 49))
sketch14.addConstraint(Sketcher.Constraint("PointOnObject", 29, 1, -1))
sketch14.addConstraint(Sketcher.Constraint("PointOnObject", 39, 1, -1))
sketch14.addConstraint(Sketcher.Constraint("Horizontal", 5, 3, 9, 3))
sketch14.addConstraint(Sketcher.Constraint("Horizontal", 7, 3, 13, 3))
sketch14.addConstraint(Sketcher.Constraint("Horizontal", 19, 3, 43, 3))
sketch14.addConstraint(Sketcher.Constraint("Vertical", 3, 3, 23, 3))
sketch14.addConstraint(Sketcher.Constraint("Vertical", 21, 3, 27, 3))
sketch14.addConstraint(Sketcher.Constraint("Vertical", 25, 3, 31, 3))
sketch14.addConstraint(Sketcher.Constraint("Vertical", 13, 3, 37, 3))
sketch14.addConstraint(Sketcher.Constraint("Vertical", 41, 3, 43, 3))
sketch14.addConstraint(Sketcher.Constraint("Vertical", 39, 3, 45, 3))
sketch14.addConstraint(Sketcher.Constraint("Radius", 1, Q("2 mm")))
sketch14.addConstraint(Sketcher.Constraint("Angle", 16, Q("-135 deg")))
sketch14.addConstraint(Sketcher.Constraint("DistanceX", -1, 1, 1, 3, Q("43.5 mm")))
sketch14.addConstraint(Sketcher.Constraint("DistanceX", 22, 1, 22, 2, Q("8.71919 mm")))
sketch14.addConstraint(Sketcher.Constraint("DistanceY", 20, 1, 20, 2, Q("7.72677 mm")))
sketch14.addConstraint(Sketcher.Constraint("DistanceY", 34, 2, 34, 1, Q("9.452132 mm")))
sketch14.addConstraint(Sketcher.Constraint("Distance", 16, Q("6.074039 mm")))
sketch14.addConstraint(Sketcher.Constraint("DistanceX", 0, 1, 0, 2, Q("11.614653 mm")))
sketch14.addConstraint(Sketcher.Constraint("DistanceX", 10, 2, 10, 1, Q("17.276694 mm")))
sketch14.addConstraint(Sketcher.Constraint("DistanceX", 36, 2, 36, 1, Q("20.172157 mm")))
sketch14.addConstraint(Sketcher.Constraint("DistanceY", 2, 2, 2, 1, Q("9.616735 mm")))
sketch14.addConstraint(Sketcher.Constraint("DistanceY", 28, 1, 28, 2, Q("6.003047 mm")))
sketch14.addConstraint(Sketcher.Constraint("DistanceY", 42, 2, 42, 1, Q("3.277685 mm")))
sketch14.addConstraint(Sketcher.Constraint("DistanceY", -1, 1, 3, 3, Q("10.50434 mm")))
sketch14.addConstraint(Sketcher.Constraint("DistanceX", -1, 1, 35, 3, Q("26.78081 mm")))
sketch14.addConstraint(Sketcher.Constraint("DistanceY", 47, 3, -1, 1, Q("19.452132 mm")))
pocket5 = body.newObject("PartDesign::Pocket", "Pocket004")
pocket5.Profile = sketch14
pocket5.Length = 5
pocket5.Reversed = True
doc.recompute()

mirrored2 = body.newObject("PartDesign::Mirrored", "Mirrored001")
mirrored2.Originals = [pocket5]
mirrored2.MirrorPlane = (doc.getObject("YZ_Plane"), [""])
body.Tip = mirrored2

doc.recompute()
